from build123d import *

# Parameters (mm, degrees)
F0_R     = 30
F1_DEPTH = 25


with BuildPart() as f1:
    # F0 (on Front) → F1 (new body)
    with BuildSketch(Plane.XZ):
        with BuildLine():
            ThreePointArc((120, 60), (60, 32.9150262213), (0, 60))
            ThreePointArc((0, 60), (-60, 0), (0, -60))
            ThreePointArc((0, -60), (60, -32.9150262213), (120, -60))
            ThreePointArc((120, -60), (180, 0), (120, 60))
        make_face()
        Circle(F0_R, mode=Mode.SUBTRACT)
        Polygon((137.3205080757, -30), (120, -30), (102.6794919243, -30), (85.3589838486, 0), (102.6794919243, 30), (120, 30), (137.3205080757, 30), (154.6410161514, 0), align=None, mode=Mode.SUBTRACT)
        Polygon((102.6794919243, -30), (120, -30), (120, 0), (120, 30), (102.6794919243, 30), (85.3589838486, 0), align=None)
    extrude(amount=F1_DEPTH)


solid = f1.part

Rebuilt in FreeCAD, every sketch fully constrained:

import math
import FreeCAD as App
import Part
import Sketcher

V = App.Vector
Q = App.Units.Quantity


def add_polygon(sketch, points):
    """Adds a closed chain of lines whose ends are joined by coincident constraints."""
    first, n = sketch.GeometryCount, len(points)
    for a, b in zip(points, points[1:] + points[:1]):
        sketch.addGeometry(Part.LineSegment(App.Vector(*a, 0), App.Vector(*b, 0)), False)
    for i in range(n):
        sketch.addConstraint(Sketcher.Constraint("Coincident", first + i, 2, first + (i + 1) % n, 1))

doc = App.newDocument("Part")
body = doc.addObject("PartDesign::Body", "Body")

# Sketch on XZ plane
sketch1 = body.newObject("Sketcher::SketchObject", "Sketch")
sketch1.AttachmentSupport = (doc.getObject("XZ_Plane"), [""])
sketch1.MapMode = "FlatFace"
sketch1.addGeometry(Part.ArcOfCircle(Part.Circle(V(60, 112.915026, 0), V(0, 0, 1), 80), math.radians(-138.590378), math.radians(-41.409622)), False)  # 0
sketch1.addGeometry(Part.ArcOfCircle(Part.Circle(V(0, 0, 0), V(0, 0, 1), 60), math.radians(90), math.radians(270)), False)  # 1
sketch1.addGeometry(Part.ArcOfCircle(Part.Circle(V(60, -112.915026, 0), V(0, 0, 1), 80), math.radians(41.409622), math.radians(138.590378)), False)  # 2
sketch1.addGeometry(Part.ArcOfCircle(Part.Circle(V(120, 0, 0), V(0, 0, 1), 60), math.radians(-90), math.radians(90)), False)  # 3
sketch1.addGeometry(Part.Circle(V(0, 0, 0), V(0, 0, 1), 30), False)  # 4
add_polygon(sketch1, [(154.641016, 0), (137.320508, -30), (120, -30), (120, 30), (137.320508, 30)])  # lines 5-9
sketch1.addConstraint([
    Sketcher.Constraint("Coincident", 0, 1, 1, 1),
    Sketcher.Constraint("Coincident", 1, 2, 2, 2),
    Sketcher.Constraint("Coincident", 2, 1, 3, 1),
    Sketcher.Constraint("Coincident", 3, 2, 0, 2),
    Sketcher.Constraint("Horizontal", 6),
    Sketcher.Constraint("Vertical", 7),
    Sketcher.Constraint("Horizontal", 8),
    Sketcher.Constraint("Coincident", 1, 3, -1, 1),
    Sketcher.Constraint("Coincident", 4, 3, -1, 1),
    Sketcher.Constraint("Equal", 0, 2),
    Sketcher.Constraint("Equal", 1, 3),
    Sketcher.Constraint("Symmetric", 0, 3, 2, 3, -1),
    Sketcher.Constraint("Symmetric", 5, 2, 8, 2, -1),
    Sketcher.Constraint("PointOnObject", 3, 3, -1),
    Sketcher.Constraint("PointOnObject", 0, 1, -2),
    Sketcher.Constraint("PointOnObject", 9, 2, -1),
    Sketcher.Constraint("Vertical", 3, 3, 2, 1),
    Sketcher.Constraint("Vertical", 3, 2, 6, 2),
    Sketcher.Constraint("Diameter", 4, Q("60 mm")),
    Sketcher.Constraint("Radius", 0, Q("80 mm")),
    Sketcher.Constraint("Radius", 1, Q("60 mm")),
    Sketcher.Constraint("DistanceY", 7, 1, 7, 2, Q("60 mm")),
    Sketcher.Constraint("Angle", 5, Q("-120 deg")),
    Sketcher.Constraint("DistanceX", -1, 1, 0, 3, Q("60 mm")),
    Sketcher.Constraint("DistanceX", 6, 2, 6, 1, Q("17.320508 mm")),
])
pad1 = body.newObject("PartDesign::Pad", "Pad")
pad1.Profile = sketch1
pad1.Length = 25

doc.recompute()
